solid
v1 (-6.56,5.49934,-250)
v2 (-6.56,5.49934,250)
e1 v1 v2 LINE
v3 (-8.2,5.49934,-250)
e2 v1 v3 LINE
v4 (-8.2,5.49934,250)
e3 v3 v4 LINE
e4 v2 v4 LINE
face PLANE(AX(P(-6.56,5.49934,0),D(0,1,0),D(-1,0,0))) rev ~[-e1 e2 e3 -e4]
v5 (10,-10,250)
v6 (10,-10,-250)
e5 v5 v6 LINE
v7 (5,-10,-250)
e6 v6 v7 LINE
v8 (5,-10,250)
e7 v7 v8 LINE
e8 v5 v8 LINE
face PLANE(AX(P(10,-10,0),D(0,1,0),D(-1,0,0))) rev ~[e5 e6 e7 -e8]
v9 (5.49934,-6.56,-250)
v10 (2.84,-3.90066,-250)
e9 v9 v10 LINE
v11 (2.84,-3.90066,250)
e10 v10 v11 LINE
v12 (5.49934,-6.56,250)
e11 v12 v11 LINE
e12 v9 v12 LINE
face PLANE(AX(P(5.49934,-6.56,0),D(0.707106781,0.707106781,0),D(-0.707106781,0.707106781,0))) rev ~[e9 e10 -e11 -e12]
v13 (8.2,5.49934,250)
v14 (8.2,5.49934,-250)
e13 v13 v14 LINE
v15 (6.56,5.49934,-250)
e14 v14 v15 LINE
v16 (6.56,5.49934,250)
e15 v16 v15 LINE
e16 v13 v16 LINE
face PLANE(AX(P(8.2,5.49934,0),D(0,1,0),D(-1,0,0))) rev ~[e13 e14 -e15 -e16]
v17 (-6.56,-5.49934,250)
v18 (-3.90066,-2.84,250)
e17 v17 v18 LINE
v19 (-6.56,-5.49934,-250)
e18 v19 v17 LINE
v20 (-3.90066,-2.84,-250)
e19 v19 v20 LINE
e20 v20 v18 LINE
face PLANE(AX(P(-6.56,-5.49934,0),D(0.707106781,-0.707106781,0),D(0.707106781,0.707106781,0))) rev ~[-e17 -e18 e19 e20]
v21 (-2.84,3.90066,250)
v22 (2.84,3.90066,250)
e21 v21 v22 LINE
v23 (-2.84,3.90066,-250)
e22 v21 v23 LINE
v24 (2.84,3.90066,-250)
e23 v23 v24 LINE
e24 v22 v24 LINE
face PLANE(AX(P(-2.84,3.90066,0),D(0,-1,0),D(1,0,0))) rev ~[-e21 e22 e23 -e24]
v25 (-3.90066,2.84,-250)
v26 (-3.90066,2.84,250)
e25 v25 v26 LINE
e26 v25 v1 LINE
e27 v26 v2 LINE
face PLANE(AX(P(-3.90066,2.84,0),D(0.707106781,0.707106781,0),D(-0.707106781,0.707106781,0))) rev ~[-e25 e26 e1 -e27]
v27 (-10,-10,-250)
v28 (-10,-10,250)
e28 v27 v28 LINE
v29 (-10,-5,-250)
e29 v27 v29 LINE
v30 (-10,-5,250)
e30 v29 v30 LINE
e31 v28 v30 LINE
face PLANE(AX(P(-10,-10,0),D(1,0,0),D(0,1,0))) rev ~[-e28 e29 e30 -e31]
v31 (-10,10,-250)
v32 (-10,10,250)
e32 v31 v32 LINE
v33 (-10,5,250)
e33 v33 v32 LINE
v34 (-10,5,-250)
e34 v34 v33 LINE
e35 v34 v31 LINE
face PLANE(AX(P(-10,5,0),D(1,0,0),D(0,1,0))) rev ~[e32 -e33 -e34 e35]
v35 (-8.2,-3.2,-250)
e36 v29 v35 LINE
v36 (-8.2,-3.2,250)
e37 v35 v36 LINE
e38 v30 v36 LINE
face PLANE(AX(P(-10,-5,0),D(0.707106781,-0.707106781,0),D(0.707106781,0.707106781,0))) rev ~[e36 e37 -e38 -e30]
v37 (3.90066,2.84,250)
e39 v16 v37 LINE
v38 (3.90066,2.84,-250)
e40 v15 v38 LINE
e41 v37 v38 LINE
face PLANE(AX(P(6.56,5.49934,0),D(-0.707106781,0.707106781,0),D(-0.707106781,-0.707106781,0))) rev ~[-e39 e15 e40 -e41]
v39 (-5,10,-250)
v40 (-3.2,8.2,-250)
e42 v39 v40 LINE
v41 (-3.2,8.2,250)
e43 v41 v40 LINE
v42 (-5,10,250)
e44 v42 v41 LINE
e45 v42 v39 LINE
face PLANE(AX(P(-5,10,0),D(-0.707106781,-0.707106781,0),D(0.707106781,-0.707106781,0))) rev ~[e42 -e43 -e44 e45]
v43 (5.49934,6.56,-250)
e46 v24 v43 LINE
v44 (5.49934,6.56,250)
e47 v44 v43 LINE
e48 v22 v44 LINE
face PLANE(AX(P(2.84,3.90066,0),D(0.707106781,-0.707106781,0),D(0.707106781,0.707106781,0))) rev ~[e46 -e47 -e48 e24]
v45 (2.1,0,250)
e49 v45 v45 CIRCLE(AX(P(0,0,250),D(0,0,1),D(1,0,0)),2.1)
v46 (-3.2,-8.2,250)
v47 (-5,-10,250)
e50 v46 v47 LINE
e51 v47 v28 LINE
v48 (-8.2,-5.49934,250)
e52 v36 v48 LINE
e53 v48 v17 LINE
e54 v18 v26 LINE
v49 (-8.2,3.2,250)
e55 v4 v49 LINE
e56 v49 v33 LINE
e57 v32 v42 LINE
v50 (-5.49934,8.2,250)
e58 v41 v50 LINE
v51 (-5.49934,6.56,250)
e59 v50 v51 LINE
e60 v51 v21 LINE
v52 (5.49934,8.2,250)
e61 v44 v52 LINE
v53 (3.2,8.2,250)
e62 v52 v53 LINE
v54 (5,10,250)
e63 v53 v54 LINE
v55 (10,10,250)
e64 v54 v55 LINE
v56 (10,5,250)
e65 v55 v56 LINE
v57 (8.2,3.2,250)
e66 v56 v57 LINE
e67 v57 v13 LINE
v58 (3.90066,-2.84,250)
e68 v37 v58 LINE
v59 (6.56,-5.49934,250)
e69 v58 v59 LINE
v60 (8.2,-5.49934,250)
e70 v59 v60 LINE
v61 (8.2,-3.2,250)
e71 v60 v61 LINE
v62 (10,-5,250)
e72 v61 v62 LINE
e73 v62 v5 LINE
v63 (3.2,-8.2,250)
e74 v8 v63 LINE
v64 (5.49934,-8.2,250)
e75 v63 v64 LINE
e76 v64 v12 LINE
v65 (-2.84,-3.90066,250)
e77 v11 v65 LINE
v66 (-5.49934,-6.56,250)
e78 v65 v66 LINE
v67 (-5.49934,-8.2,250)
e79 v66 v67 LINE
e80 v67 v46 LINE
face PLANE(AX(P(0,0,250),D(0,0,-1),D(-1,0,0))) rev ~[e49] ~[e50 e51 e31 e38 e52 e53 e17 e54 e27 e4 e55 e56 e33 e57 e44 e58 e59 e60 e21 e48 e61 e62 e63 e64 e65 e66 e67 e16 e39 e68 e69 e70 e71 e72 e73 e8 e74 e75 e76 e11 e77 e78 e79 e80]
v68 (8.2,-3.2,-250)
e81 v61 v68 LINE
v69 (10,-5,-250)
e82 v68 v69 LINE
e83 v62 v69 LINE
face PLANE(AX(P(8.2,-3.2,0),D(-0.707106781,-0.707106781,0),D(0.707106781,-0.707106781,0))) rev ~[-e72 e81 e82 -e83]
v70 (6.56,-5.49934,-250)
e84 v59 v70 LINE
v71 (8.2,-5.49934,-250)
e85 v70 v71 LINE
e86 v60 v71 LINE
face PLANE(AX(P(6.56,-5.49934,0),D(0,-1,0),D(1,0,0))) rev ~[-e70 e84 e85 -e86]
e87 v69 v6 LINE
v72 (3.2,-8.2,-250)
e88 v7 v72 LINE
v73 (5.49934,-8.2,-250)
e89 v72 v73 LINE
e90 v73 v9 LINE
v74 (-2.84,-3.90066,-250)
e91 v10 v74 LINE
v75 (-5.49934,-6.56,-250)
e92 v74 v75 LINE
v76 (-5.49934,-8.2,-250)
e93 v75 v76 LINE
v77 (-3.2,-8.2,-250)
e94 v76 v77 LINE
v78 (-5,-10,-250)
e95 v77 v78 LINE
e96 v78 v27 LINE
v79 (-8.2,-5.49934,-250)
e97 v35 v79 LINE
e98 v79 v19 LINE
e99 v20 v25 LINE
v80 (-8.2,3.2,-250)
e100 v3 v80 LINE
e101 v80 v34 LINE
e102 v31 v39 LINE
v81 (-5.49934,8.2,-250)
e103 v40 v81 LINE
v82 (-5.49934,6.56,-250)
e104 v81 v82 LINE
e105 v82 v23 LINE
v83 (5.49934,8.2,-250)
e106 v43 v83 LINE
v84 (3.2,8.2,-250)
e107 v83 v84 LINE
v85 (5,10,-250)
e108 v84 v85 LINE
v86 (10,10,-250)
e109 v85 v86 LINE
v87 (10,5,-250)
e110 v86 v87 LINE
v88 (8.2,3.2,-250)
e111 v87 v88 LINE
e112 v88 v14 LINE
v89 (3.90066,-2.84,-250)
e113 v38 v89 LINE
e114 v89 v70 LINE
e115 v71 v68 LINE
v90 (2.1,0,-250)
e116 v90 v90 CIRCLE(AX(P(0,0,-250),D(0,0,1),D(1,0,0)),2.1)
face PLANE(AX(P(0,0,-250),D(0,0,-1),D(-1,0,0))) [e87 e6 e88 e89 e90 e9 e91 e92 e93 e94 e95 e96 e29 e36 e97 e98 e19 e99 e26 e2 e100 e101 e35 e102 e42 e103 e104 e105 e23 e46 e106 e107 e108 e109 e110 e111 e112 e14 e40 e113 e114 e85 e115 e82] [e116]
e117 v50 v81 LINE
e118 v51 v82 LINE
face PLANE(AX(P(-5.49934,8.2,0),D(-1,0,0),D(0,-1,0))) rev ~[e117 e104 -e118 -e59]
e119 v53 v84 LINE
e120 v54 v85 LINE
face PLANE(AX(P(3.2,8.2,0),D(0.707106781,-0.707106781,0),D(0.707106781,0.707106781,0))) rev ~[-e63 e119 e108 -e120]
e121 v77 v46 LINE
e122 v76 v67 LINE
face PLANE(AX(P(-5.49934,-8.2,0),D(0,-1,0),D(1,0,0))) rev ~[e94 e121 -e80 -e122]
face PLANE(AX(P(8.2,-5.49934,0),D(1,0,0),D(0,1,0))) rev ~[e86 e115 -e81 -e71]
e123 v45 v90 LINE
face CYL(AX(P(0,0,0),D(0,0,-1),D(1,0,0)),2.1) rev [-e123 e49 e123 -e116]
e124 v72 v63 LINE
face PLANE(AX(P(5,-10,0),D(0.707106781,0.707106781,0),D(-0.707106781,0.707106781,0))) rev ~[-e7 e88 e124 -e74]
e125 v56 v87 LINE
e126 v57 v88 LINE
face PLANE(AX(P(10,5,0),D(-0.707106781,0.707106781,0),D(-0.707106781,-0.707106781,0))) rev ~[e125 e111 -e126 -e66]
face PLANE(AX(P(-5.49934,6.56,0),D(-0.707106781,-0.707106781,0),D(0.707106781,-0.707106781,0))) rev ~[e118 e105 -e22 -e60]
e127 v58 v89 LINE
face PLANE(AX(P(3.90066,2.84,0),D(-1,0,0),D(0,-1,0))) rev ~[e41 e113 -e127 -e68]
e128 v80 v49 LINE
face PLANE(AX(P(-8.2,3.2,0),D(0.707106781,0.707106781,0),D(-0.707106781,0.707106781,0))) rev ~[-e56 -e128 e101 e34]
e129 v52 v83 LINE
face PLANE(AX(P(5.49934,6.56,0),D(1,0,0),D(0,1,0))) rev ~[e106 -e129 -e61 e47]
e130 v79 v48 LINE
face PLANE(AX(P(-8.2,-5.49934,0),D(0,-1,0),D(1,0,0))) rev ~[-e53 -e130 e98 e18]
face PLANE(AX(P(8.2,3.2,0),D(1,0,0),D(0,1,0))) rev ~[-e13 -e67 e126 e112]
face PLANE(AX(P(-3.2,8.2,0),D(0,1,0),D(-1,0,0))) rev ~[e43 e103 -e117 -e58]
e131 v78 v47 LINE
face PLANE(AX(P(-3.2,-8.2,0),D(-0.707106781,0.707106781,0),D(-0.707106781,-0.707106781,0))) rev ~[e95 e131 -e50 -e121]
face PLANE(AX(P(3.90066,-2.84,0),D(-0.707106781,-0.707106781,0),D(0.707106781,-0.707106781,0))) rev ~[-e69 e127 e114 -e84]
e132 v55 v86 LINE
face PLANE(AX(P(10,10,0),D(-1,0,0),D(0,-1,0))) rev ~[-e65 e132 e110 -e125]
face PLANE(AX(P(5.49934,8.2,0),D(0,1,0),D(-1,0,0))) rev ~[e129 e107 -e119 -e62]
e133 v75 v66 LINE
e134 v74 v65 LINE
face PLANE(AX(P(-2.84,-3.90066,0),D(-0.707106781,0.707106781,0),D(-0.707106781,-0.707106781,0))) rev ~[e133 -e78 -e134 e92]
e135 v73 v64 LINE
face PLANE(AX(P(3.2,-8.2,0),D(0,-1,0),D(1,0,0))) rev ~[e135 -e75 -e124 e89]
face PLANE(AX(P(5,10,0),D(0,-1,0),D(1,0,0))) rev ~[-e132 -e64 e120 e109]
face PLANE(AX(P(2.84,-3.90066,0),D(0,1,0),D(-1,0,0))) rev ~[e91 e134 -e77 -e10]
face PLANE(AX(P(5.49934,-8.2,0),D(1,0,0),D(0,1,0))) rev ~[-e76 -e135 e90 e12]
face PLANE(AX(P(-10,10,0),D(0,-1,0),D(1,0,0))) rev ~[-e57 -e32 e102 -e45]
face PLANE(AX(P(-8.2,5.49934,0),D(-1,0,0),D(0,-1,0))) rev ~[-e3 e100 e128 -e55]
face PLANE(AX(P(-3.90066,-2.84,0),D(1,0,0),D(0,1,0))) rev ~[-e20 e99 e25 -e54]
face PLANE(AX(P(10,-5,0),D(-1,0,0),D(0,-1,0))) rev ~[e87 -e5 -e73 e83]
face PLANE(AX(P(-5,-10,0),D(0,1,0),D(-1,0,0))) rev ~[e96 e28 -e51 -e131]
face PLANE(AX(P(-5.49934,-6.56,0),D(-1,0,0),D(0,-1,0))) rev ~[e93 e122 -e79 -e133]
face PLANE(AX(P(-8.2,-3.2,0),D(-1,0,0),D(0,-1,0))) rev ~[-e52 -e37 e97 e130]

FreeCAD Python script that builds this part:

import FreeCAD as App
import Part
import Sketcher

V = App.Vector

doc = App.newDocument("Part")
body = doc.addObject("PartDesign::Body", "Body")

# Sketch on XY plane
sketch1 = doc.addObject("Sketcher::SketchObject", "Sketch")
body.addObject(sketch1)
sketch1.AttachmentSupport = (doc.XY_Plane, [""])
sketch1.MapMode = "FlatFace"
sketch1.addGeometry([
    Part.LineSegment(V(-5, 10, 0), V(-10, 10, 0)),  # 0
    Part.LineSegment(V(-10, 10, 0), V(-10, 5, 0)),  # 1
    Part.LineSegment(V(-10, 5, 0), V(-8.2, 3.2, 0)),  # 2
    Part.LineSegment(V(-8.2, 3.2, 0), V(-8.2, 5.5, 0)),  # 3
    Part.LineSegment(V(-8.2, 5.5, 0), V(-6.6, 5.5, 0)),  # 4
    Part.LineSegment(V(-6.6, 5.5, 0), V(-3.9, 2.8, 0)),  # 5
    Part.LineSegment(V(-3.9, 2.8, 0), V(-3.9, -2.8, 0)),  # 6
    Part.LineSegment(V(-3.9, -2.8, 0), V(-6.6, -5.5, 0)),  # 7
    Part.LineSegment(V(-6.6, -5.5, 0), V(-8.2, -5.5, 0)),  # 8
    Part.LineSegment(V(-8.2, -5.5, 0), V(-8.2, -3.2, 0)),  # 9
    Part.LineSegment(V(-8.2, -3.2, 0), V(-10, -5, 0)),  # 10
    Part.LineSegment(V(-10, -5, 0), V(-10, -10, 0)),  # 11
    Part.LineSegment(V(-10, -10, 0), V(-5, -10, 0)),  # 12
    Part.LineSegment(V(-5, -10, 0), V(-3.2, -8.2, 0)),  # 13
    Part.LineSegment(V(-3.2, -8.2, 0), V(-5.5, -8.2, 0)),  # 14
    Part.LineSegment(V(-5.5, -8.2, 0), V(-5.5, -6.6, 0)),  # 15
    Part.LineSegment(V(-5.5, -6.6, 0), V(-2.8, -3.9, 0)),  # 16
    Part.LineSegment(V(-2.8, -3.9, 0), V(2.8, -3.9, 0)),  # 17
    Part.LineSegment(V(2.8, -3.9, 0), V(5.5, -6.6, 0)),  # 18
    Part.LineSegment(V(5.5, -6.6, 0), V(5.5, -8.2, 0)),  # 19
    Part.LineSegment(V(5.5, -8.2, 0), V(3.2, -8.2, 0)),  # 20
    Part.LineSegment(V(3.2, -8.2, 0), V(5, -10, 0)),  # 21
    Part.LineSegment(V(5, -10, 0), V(10, -10, 0)),  # 22
    Part.LineSegment(V(10, -10, 0), V(10, -5, 0)),  # 23
    Part.LineSegment(V(10, -5, 0), V(8.2, -3.2, 0)),  # 24
    Part.LineSegment(V(8.2, -3.2, 0), V(8.2, -5.5, 0)),  # 25
    Part.LineSegment(V(8.2, -5.5, 0), V(6.6, -5.5, 0)),  # 26
    Part.LineSegment(V(6.6, -5.5, 0), V(3.9, -2.8, 0)),  # 27
    Part.LineSegment(V(3.9, -2.8, 0), V(3.9, 2.8, 0)),  # 28
    Part.LineSegment(V(3.9, 2.8, 0), V(6.6, 5.5, 0)),  # 29
    Part.LineSegment(V(6.6, 5.5, 0), V(8.2, 5.5, 0)),  # 30
    Part.LineSegment(V(8.2, 5.5, 0), V(8.2, 3.2, 0)),  # 31
    Part.LineSegment(V(8.2, 3.2, 0), V(10, 5, 0)),  # 32
    Part.LineSegment(V(10, 5, 0), V(10, 10, 0)),  # 33
    Part.LineSegment(V(10, 10, 0), V(5, 10, 0)),  # 34
    Part.LineSegment(V(5, 10, 0), V(3.2, 8.2, 0)),  # 35
    Part.LineSegment(V(3.2, 8.2, 0), V(5.5, 8.2, 0)),  # 36
    Part.LineSegment(V(5.5, 8.2, 0), V(5.5, 6.6, 0)),  # 37
    Part.LineSegment(V(5.5, 6.6, 0), V(2.8, 3.9, 0)),  # 38
    Part.LineSegment(V(2.8, 3.9, 0), V(-2.8, 3.9, 0)),  # 39
    Part.LineSegment(V(-2.8, 3.9, 0), V(-5.5, 6.6, 0)),  # 40
    Part.LineSegment(V(-5.5, 6.6, 0), V(-5.5, 8.2, 0)),  # 41
    Part.LineSegment(V(-5.5, 8.2, 0), V(-3.2, 8.2, 0)),  # 42
    Part.LineSegment(V(-3.2, 8.2, 0), V(-5, 10, 0)),  # 43
    Part.Circle(V(0, 0, 0), V(0, 0, 1), 2.1),  # 44
], False)
sketch1.addConstraint([
    Sketcher.Constraint("Coincident", 0, 2, 1, 1),
    Sketcher.Constraint("Coincident", 1, 2, 2, 1),
    Sketcher.Constraint("Coincident", 2, 2, 3, 1),
    Sketcher.Constraint("Coincident", 3, 2, 4, 1),
    Sketcher.Constraint("Coincident", 4, 2, 5, 1),
    Sketcher.Constraint("Coincident", 5, 2, 6, 1),
    Sketcher.Constraint("Coincident", 6, 2, 7, 1),
    Sketcher.Constraint("Coincident", 7, 2, 8, 1),
    Sketcher.Constraint("Coincident", 8, 2, 9, 1),
    Sketcher.Constraint("Coincident", 9, 2, 10, 1),
    Sketcher.Constraint("Coincident", 10, 2, 11, 1),
    Sketcher.Constraint("Coincident", 11, 2, 12, 1),
    Sketcher.Constraint("Coincident", 12, 2, 13, 1),
    Sketcher.Constraint("Coincident", 13, 2, 14, 1),
    Sketcher.Constraint("Coincident", 14, 2, 15, 1),
    Sketcher.Constraint("Coincident", 15, 2, 16, 1),
    Sketcher.Constraint("Coincident", 16, 2, 17, 1),
    Sketcher.Constraint("Coincident", 17, 2, 18, 1),
    Sketcher.Constraint("Coincident", 18, 2, 19, 1),
    Sketcher.Constraint("Coincident", 19, 2, 20, 1),
    Sketcher.Constraint("Coincident", 20, 2, 21, 1),
    Sketcher.Constraint("Coincident", 21, 2, 22, 1),
    Sketcher.Constraint("Coincident", 22, 2, 23, 1),
    Sketcher.Constraint("Coincident", 23, 2, 24, 1),
    Sketcher.Constraint("Coincident", 24, 2, 25, 1),
    Sketcher.Constraint("Coincident", 25, 2, 26, 1),
    Sketcher.Constraint("Coincident", 26, 2, 27, 1),
    Sketcher.Constraint("Coincident", 27, 2, 28, 1),
    Sketcher.Constraint("Coincident", 28, 2, 29, 1),
    Sketcher.Constraint("Coincident", 29, 2, 30, 1),
    Sketcher.Constraint("Coincident", 30, 2, 31, 1),
    Sketcher.Constraint("Coincident", 31, 2, 32, 1),
    Sketcher.Constraint("Coincident", 32, 2, 33, 1),
    Sketcher.Constraint("Coincident", 33, 2, 34, 1),
    Sketcher.Constraint("Coincident", 34, 2, 35, 1),
    Sketcher.Constraint("Coincident", 35, 2, 36, 1),
    Sketcher.Constraint("Coincident", 36, 2, 37, 1),
    Sketcher.Constraint("Coincident", 37, 2, 38, 1),
    Sketcher.Constraint("Coincident", 38, 2, 39, 1),
    Sketcher.Constraint("Coincident", 39, 2, 40, 1),
    Sketcher.Constraint("Coincident", 40, 2, 41, 1),
    Sketcher.Constraint("Coincident", 41, 2, 42, 1),
    Sketcher.Constraint("Coincident", 42, 2, 43, 1),
    Sketcher.Constraint("Coincident", 43, 2, 0, 1),
    Sketcher.Constraint("Horizontal", 0),
    Sketcher.Constraint("Vertical", 1),
    Sketcher.Constraint("Vertical", 3),
    Sketcher.Constraint("Horizontal", 4),
    Sketcher.Constraint("Vertical", 6),
    Sketcher.Constraint("Horizontal", 8),
    Sketcher.Constraint("Vertical", 9),
    Sketcher.Constraint("Vertical", 11),
    Sketcher.Constraint("Horizontal", 12),
    Sketcher.Constraint("Horizontal", 14),
    Sketcher.Constraint("Vertical", 15),
    Sketcher.Constraint("Horizontal", 17),
    Sketcher.Constraint("Vertical", 19),
    Sketcher.Constraint("Horizontal", 20),
    Sketcher.Constraint("Horizontal", 22),
    Sketcher.Constraint("Vertical", 23),
    Sketcher.Constraint("Vertical", 25),
    Sketcher.Constraint("Horizontal", 26),
    Sketcher.Constraint("Vertical", 28),
    Sketcher.Constraint("Horizontal", 30),
    Sketcher.Constraint("Vertical", 31),
    Sketcher.Constraint("Vertical", 33),
    Sketcher.Constraint("Horizontal", 34),
    Sketcher.Constraint("Horizontal", 36),
    Sketcher.Constraint("Vertical", 37),
    Sketcher.Constraint("Horizontal", 39),
    Sketcher.Constraint("Vertical", 41),
    Sketcher.Constraint("Horizontal", 42),
    Sketcher.Constraint("Coincident", 44, 3, -1, 1),
    Sketcher.Constraint("Symmetric", 0, 2, 22, 2, -1, 1),
    Sketcher.Constraint("Symmetric", 2, 2, 24, 2, -1, 1),
    Sketcher.Constraint("Symmetric", 4, 2, 26, 2, -1, 1),
    Sketcher.Constraint("Symmetric", 5, 2, 27, 2, -1, 1),
    Sketcher.Constraint("Symmetric", 7, 2, 29, 2, -1, 1),
    Sketcher.Constraint("Symmetric", 9, 2, 31, 2, -1, 1),
    Sketcher.Constraint("Symmetric", 10, 2, 32, 2, -1, 1),
    Sketcher.Constraint("Symmetric", 12, 2, 34, 2, -1, 1),
    Sketcher.Constraint("Symmetric", 13, 2, 35, 2, -1, 1),
    Sketcher.Constraint("Symmetric", 15, 2, 37, 2, -1, 1),
    Sketcher.Constraint("Symmetric", 16, 2, 38, 2, -1, 1),
    Sketcher.Constraint("Symmetric", 18, 2, 40, 2, -1, 1),
    Sketcher.Constraint("Symmetric", 20, 2, 42, 2, -1, 1),
    Sketcher.Constraint("Symmetric", 15, 2, 18, 2, -2),
    Sketcher.Constraint("Symmetric", 13, 2, 20, 2, -2),
    Sketcher.Constraint("Symmetric", 12, 2, 21, 2, -2),
    Sketcher.Constraint("Symmetric", 10, 2, 23, 2, -2),
    Sketcher.Constraint("Symmetric", 9, 2, 24, 2, -2),
    Sketcher.Constraint("Symmetric", 7, 2, 26, 2, -2),
    Sketcher.Constraint("Parallel", 2, 5),
    Sketcher.Constraint("Perpendicular", 5, 7),
    Sketcher.Constraint("Parallel", 7, 10),
    Sketcher.Constraint("Parallel", 10, 13),
    Sketcher.Constraint("Parallel", 13, 16),
    Sketcher.Constraint("Perpendicular", 16, 18),
    Sketcher.Constraint("Parallel", 18, 21),
    Sketcher.Constraint("Perpendicular", 27, 29),
    Sketcher.Constraint("Perpendicular", 38, 40),
    Sketcher.Constraint("Parallel", 40, 43),
    Sketcher.Constraint("Equal", 34, 1),
    Sketcher.Constraint("Equal", 42, 3),
    Sketcher.Constraint("Equal", 39, 6),
    Sketcher.Constraint("Equal", 30, 15),
    Sketcher.Constraint("Equal", 10, 13),
    Sketcher.Constraint("Equal", 7, 16),
    Sketcher.Constraint("Diameter", 44, 4.2),
    Sketcher.Constraint("DistanceX", 0, 2, 0, 1, 5.0),
    Sketcher.Constraint("DistanceX", 0, 2, -1, 1, 10.0),
    Sketcher.Constraint("DistanceX", 4, 1, 4, 2, 1.64),
    Sketcher.Constraint("DistanceX", 17, 1, 17, 2, 5.68),
    Sketcher.Constraint("DistanceX", 2, 2, -1, 1, 8.2),
    Sketcher.Constraint("DistanceX", 14, 2, 14, 1, 2.29934),
])
pad1 = doc.addObject("PartDesign::Pad", "Pad")
body.addObject(pad1)
pad1.Profile = sketch1
pad1.Length = 500
pad1.Midplane = True

doc.recompute()
